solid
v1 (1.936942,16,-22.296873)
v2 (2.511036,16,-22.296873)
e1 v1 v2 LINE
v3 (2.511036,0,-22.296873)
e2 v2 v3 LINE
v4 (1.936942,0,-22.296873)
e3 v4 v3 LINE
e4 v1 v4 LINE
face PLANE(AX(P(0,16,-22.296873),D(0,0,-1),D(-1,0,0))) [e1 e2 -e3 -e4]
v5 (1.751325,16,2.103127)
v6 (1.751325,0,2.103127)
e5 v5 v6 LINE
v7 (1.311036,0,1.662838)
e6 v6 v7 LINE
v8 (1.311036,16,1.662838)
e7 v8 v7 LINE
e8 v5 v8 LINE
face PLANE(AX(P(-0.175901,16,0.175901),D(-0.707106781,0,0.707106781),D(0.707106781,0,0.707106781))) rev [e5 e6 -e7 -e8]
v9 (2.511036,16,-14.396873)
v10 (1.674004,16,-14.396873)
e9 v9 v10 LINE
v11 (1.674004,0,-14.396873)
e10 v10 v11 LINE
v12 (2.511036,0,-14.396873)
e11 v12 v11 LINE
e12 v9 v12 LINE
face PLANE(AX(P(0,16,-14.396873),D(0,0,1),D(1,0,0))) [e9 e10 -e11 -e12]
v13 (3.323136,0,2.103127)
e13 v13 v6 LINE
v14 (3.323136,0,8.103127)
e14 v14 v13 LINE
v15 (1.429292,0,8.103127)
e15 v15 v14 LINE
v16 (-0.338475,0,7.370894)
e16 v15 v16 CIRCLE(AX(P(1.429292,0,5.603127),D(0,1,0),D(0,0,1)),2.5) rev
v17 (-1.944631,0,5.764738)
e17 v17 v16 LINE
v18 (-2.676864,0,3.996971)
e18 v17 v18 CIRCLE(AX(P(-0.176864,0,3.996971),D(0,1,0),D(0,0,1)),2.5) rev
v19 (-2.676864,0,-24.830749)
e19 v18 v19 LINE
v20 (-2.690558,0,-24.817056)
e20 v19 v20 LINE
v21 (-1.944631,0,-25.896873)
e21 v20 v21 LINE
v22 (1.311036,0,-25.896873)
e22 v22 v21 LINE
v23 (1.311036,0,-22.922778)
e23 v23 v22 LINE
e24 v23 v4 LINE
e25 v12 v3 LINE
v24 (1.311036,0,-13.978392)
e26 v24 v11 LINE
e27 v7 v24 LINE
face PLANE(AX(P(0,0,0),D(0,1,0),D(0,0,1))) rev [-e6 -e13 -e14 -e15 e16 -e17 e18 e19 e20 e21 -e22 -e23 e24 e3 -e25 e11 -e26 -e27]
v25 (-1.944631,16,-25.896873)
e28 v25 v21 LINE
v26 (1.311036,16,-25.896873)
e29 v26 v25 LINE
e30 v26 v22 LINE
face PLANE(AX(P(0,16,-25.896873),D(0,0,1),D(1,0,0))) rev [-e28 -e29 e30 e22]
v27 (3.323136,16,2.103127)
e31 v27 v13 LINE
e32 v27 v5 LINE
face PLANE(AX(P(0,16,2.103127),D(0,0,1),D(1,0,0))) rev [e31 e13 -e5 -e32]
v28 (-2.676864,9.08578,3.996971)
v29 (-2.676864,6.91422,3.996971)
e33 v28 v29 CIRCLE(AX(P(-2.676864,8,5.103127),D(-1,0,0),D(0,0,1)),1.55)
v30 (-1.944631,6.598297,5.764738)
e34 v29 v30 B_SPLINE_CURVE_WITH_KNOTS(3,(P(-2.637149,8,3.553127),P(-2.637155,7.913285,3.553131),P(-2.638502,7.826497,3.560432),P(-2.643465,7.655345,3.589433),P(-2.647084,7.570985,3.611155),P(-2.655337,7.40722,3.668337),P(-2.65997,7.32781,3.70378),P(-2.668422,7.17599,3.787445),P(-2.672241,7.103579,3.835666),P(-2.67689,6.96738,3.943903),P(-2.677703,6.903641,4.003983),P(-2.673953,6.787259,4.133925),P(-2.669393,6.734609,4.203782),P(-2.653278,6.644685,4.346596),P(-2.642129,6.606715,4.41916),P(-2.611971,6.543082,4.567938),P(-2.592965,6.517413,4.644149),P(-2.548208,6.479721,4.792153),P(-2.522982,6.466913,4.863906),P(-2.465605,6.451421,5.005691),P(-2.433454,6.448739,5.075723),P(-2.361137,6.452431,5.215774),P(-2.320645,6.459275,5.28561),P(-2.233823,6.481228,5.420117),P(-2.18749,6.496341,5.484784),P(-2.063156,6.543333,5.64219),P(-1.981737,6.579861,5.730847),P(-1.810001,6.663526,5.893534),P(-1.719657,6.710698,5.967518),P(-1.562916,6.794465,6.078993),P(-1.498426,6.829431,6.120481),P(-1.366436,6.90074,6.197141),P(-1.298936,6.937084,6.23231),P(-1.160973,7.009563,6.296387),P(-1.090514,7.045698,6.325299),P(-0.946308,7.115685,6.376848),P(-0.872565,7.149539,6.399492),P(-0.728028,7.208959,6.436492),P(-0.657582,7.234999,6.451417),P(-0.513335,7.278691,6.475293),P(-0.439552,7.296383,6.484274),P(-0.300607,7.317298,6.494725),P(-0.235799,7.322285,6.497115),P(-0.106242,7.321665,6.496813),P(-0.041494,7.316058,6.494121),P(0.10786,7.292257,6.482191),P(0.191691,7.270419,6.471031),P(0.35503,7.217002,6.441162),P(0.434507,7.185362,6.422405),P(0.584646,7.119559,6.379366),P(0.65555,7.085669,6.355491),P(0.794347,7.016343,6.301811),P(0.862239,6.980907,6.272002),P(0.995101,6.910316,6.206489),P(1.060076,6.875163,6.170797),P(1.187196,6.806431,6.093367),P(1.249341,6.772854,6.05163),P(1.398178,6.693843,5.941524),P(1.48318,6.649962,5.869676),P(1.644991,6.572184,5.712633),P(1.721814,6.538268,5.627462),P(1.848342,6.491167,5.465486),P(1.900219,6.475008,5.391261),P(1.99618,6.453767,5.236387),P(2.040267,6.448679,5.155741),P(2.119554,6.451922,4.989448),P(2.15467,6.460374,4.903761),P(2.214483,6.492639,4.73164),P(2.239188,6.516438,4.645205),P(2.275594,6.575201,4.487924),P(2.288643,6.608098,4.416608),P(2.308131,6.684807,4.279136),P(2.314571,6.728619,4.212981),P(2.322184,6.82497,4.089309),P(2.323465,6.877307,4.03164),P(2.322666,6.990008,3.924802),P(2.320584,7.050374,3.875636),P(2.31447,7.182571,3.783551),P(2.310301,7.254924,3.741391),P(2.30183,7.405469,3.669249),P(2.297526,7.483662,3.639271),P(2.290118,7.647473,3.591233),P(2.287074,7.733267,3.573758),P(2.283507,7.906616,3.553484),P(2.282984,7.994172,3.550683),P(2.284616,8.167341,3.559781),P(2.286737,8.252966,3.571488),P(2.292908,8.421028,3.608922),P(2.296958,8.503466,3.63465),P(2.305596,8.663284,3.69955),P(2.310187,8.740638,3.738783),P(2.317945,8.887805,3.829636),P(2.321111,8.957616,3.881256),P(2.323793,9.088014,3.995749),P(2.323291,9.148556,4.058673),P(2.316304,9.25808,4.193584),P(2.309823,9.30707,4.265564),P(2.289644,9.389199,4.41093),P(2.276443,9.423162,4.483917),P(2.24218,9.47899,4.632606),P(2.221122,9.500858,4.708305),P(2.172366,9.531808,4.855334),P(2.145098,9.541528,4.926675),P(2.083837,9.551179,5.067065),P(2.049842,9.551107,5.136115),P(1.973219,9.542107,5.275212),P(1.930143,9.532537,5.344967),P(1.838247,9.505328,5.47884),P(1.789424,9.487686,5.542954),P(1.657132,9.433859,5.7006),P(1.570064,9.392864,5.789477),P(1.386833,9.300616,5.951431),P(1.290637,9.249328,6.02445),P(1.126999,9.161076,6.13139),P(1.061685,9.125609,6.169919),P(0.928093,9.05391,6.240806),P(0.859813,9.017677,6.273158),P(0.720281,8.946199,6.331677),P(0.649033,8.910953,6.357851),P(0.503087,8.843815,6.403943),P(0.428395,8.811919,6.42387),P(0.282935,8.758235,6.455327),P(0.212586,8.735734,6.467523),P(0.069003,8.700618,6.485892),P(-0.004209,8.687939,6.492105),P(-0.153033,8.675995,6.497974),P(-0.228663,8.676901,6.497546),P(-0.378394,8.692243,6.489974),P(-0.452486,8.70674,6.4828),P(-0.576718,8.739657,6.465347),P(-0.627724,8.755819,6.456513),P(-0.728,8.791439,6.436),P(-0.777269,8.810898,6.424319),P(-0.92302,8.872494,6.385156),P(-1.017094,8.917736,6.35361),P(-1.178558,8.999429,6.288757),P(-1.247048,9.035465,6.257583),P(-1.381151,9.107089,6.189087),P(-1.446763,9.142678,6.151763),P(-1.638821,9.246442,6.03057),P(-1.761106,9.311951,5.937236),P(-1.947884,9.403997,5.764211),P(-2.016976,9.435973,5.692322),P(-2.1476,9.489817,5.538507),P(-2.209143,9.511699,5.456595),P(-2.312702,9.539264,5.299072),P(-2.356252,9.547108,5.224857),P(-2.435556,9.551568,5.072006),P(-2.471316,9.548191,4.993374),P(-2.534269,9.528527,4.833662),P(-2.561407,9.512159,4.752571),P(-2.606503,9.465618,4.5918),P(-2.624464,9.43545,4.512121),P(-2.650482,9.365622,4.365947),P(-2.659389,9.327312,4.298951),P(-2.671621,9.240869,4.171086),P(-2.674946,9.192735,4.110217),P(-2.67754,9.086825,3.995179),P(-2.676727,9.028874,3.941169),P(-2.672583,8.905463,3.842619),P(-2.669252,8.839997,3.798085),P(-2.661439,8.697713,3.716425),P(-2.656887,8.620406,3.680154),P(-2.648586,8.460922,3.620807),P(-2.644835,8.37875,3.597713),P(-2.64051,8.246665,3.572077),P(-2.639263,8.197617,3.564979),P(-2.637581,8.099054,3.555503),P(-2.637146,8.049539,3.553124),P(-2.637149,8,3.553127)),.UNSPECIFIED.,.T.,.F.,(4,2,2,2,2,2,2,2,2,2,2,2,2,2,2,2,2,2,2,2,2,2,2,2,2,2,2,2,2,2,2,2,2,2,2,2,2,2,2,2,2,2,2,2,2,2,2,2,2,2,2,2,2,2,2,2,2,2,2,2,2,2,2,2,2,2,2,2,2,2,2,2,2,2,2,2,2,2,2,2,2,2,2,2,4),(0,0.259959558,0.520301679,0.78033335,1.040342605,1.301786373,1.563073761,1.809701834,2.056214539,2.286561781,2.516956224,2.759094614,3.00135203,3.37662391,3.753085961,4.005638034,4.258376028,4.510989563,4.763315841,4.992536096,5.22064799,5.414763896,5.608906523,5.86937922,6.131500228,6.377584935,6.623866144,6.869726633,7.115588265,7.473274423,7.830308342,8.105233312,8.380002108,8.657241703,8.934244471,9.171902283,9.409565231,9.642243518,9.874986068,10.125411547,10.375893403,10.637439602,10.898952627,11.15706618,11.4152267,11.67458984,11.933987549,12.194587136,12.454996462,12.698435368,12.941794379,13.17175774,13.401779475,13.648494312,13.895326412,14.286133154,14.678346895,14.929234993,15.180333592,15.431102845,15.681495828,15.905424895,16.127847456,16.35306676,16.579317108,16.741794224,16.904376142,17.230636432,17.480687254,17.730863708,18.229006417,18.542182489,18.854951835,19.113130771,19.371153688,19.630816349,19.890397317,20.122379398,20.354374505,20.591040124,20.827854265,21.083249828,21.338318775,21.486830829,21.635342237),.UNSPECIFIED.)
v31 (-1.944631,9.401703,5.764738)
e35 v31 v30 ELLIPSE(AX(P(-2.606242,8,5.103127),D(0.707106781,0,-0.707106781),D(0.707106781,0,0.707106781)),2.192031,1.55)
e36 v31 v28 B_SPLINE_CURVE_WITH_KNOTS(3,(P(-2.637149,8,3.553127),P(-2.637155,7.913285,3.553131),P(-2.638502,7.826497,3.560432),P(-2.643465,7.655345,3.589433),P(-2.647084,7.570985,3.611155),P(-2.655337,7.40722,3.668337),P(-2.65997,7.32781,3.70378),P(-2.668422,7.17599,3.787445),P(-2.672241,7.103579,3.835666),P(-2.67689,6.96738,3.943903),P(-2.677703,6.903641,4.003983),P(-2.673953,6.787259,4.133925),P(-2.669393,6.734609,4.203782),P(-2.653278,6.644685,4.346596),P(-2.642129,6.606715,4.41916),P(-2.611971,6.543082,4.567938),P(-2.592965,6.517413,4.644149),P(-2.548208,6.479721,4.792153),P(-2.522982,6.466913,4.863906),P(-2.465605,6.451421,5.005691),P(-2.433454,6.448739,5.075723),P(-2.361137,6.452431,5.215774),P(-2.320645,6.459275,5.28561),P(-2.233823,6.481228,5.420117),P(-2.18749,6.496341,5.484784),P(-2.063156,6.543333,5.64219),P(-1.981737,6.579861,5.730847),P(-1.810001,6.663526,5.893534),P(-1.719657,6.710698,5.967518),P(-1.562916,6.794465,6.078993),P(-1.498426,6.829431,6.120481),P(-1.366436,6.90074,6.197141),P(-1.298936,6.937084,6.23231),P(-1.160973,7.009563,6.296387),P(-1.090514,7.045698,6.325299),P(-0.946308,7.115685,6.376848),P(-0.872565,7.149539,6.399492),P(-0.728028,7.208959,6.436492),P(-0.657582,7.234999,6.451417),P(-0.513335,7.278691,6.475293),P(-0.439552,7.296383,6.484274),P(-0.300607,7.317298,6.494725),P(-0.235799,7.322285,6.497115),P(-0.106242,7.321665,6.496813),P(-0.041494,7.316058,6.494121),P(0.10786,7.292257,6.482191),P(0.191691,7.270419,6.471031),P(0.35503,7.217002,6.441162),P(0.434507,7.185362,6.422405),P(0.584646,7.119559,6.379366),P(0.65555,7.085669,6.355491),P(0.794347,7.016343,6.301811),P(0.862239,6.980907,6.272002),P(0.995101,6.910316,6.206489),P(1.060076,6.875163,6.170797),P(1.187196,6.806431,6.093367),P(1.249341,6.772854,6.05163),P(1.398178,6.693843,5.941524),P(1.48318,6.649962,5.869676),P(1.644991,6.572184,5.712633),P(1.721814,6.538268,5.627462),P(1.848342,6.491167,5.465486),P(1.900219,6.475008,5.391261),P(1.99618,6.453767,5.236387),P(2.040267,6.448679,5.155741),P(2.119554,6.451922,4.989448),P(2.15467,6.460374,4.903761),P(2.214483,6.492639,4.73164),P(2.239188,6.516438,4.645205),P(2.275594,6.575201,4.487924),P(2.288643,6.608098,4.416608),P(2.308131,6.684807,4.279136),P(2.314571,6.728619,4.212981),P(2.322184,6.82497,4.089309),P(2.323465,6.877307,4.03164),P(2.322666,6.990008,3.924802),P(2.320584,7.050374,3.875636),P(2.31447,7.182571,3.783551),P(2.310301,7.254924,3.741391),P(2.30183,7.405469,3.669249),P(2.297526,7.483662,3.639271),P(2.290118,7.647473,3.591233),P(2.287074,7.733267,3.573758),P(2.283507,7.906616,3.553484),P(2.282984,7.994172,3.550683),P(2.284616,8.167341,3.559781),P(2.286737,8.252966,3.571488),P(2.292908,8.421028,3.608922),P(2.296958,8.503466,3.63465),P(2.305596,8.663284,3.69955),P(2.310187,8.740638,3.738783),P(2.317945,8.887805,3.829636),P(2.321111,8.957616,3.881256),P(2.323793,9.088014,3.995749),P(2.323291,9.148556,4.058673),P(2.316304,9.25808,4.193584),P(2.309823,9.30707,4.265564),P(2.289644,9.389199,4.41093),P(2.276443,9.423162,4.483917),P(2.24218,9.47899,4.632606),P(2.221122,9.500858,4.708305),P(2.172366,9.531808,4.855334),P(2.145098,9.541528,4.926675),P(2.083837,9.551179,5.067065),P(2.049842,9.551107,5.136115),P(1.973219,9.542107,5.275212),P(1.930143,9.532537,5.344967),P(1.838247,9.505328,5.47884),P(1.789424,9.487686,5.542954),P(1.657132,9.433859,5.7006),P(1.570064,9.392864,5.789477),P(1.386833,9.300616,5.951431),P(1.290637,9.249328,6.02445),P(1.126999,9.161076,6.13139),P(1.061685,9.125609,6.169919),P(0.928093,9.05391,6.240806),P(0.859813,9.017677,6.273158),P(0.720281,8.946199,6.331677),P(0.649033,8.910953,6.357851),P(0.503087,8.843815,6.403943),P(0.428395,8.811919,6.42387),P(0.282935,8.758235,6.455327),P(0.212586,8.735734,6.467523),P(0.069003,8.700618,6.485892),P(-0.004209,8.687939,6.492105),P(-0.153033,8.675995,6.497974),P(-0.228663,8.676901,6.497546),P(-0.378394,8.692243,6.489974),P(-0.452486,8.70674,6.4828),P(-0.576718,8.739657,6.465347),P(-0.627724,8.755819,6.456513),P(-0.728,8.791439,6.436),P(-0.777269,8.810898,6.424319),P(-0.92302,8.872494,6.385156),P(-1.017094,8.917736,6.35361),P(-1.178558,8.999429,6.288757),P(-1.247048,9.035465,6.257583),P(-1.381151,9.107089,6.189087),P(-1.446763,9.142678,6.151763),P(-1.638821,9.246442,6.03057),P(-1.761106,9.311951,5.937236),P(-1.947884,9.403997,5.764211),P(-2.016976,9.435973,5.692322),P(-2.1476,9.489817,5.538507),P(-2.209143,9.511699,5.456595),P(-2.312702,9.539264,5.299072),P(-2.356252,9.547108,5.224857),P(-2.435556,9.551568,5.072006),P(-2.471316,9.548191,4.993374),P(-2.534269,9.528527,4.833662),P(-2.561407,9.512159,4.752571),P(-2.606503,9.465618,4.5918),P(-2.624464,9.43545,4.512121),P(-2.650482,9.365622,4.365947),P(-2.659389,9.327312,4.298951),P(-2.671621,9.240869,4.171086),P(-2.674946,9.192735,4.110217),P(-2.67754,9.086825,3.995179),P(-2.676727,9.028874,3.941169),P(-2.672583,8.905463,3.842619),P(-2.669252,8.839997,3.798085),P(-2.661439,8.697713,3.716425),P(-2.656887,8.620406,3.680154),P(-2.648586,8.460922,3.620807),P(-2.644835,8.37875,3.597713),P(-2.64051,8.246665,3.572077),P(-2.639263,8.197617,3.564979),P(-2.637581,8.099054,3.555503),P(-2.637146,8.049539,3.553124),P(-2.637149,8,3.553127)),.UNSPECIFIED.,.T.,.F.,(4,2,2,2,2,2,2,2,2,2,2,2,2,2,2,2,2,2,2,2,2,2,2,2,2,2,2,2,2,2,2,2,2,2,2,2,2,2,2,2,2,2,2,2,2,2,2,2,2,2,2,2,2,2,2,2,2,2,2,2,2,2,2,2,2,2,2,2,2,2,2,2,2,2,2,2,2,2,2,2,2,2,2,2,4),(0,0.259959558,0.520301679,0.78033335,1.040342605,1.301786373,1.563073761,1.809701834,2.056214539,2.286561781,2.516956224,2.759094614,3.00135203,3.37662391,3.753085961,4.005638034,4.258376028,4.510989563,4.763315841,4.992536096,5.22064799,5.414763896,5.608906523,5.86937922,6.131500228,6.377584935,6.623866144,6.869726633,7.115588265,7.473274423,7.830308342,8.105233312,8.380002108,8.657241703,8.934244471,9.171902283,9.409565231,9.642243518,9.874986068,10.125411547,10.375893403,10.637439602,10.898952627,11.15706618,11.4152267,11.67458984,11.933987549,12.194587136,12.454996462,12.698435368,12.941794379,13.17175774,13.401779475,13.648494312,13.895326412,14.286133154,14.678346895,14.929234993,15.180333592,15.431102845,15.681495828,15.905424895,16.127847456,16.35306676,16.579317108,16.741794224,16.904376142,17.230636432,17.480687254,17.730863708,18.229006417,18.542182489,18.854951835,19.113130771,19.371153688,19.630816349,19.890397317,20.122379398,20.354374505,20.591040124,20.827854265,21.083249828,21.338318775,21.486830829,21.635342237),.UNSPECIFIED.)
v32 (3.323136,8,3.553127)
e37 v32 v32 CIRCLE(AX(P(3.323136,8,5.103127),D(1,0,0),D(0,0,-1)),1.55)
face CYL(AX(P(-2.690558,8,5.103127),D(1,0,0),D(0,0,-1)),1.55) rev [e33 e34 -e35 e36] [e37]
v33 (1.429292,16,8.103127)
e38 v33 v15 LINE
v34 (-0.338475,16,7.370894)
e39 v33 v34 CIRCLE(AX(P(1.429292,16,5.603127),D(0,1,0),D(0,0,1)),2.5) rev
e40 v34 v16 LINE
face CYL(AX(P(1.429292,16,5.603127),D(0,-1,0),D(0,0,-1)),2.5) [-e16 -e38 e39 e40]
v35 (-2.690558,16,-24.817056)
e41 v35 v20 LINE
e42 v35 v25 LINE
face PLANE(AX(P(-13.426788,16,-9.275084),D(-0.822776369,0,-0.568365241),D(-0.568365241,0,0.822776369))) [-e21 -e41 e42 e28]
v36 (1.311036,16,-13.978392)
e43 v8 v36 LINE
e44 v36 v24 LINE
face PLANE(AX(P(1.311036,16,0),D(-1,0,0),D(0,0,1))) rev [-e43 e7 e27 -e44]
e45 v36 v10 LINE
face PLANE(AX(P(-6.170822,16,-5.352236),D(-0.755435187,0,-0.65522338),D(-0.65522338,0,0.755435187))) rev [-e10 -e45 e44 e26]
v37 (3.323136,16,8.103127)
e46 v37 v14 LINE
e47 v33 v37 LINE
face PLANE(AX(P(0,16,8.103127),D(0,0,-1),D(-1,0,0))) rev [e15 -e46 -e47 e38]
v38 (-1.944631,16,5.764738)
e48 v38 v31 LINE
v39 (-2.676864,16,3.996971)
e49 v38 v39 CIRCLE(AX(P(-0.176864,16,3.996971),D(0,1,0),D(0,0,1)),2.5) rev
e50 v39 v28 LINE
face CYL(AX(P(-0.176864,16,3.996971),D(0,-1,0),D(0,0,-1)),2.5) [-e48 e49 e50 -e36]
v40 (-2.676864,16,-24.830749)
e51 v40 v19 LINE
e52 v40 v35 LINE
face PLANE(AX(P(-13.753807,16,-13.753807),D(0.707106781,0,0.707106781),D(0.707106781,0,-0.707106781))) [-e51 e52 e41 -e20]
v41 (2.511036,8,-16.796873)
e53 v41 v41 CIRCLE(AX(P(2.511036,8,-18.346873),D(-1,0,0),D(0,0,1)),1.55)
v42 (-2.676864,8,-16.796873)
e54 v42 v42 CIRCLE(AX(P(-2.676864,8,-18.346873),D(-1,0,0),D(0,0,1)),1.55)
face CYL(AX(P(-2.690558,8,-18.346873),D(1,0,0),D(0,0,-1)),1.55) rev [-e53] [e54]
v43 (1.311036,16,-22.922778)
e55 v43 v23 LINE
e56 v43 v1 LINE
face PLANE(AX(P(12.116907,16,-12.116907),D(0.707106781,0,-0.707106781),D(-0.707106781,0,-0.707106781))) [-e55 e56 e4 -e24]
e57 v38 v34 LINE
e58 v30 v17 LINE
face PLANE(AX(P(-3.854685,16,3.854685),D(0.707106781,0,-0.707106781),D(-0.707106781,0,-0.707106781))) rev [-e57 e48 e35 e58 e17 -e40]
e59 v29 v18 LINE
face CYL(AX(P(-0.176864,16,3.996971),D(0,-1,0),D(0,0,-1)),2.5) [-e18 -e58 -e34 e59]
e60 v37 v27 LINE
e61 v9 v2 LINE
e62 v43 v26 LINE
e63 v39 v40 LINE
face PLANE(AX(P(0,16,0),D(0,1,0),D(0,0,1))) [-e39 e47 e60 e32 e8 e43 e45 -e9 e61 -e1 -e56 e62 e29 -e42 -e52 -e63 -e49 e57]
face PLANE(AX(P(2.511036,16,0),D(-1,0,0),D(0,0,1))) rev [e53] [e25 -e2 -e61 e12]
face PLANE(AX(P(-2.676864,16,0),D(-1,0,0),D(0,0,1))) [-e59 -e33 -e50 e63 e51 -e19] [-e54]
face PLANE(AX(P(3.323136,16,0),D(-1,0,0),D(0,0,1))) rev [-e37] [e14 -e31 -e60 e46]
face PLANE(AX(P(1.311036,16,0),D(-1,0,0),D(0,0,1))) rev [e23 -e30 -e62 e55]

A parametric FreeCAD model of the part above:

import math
import FreeCAD as App
import Part
import Sketcher
from FreeCAD import Vector
Q = App.Units.Quantity

doc = App.newDocument("Part")
body = doc.addObject("PartDesign::Body", "Body")

# Sketch on XZ plane
sketch1 = body.newObject("Sketcher::SketchObject", "Sketch")
sketch1.AttachmentSupport = (doc.getObject("XZ_Plane"), [""])
sketch1.MapMode = "FlatFace"
sketch1.addGeometry(Part.LineSegment(Vector(1.311036, -22.922778, 0), Vector(1.311036, -25.896873, 0)), False)
sketch1.addGeometry(Part.LineSegment(Vector(1.311036, -25.896873, 0), Vector(-1.944631, -25.896873, 0)), False)
sketch1.addGeometry(Part.LineSegment(Vector(-1.944631, -25.896873, 0), Vector(-2.690558, -24.817056, 0)), False)
sketch1.addGeometry(Part.LineSegment(Vector(-2.690558, -24.817056, 0), Vector(-2.676864, -24.830749, 0)), False)
sketch1.addGeometry(Part.LineSegment(Vector(-2.676864, -24.830749, 0), Vector(-2.676864, 3.996971, 0)), False)
sketch1.addGeometry(Part.ArcOfCircle(Part.Circle(Vector(-0.176864, 3.996971, 0), Vector(0, 0, 1), 2.5), math.radians(135), math.radians(180)), False)
sketch1.addGeometry(Part.LineSegment(Vector(-1.944631, 5.764738, 0), Vector(-0.338475, 7.370894, 0)), False)
sketch1.addGeometry(Part.ArcOfCircle(Part.Circle(Vector(1.429292, 5.603127, 0), Vector(0, 0, 1), 2.5), math.radians(90), math.radians(135)), False)
sketch1.addGeometry(Part.LineSegment(Vector(1.429292, 8.103127, 0), Vector(3.323136, 8.103127, 0)), False)
sketch1.addGeometry(Part.LineSegment(Vector(3.323136, 8.103127, 0), Vector(3.323136, 2.103127, 0)), False)
sketch1.addGeometry(Part.LineSegment(Vector(3.323136, 2.103127, 0), Vector(1.751325, 2.103127, 0)), False)
sketch1.addGeometry(Part.LineSegment(Vector(1.751325, 2.103127, 0), Vector(1.311036, 1.662838, 0)), False)
sketch1.addGeometry(Part.LineSegment(Vector(1.311036, 1.662838, 0), Vector(1.311036, -13.978392, 0)), False)
sketch1.addGeometry(Part.LineSegment(Vector(1.311036, -13.978392, 0), Vector(1.674004, -14.396873, 0)), False)
sketch1.addGeometry(Part.LineSegment(Vector(1.674004, -14.396873, 0), Vector(2.511036, -14.396873, 0)), False)
sketch1.addGeometry(Part.LineSegment(Vector(2.511036, -14.396873, 0), Vector(2.511036, -22.296873, 0)), False)
sketch1.addGeometry(Part.LineSegment(Vector(2.511036, -22.296873, 0), Vector(1.936942, -22.296873, 0)), False)
sketch1.addGeometry(Part.LineSegment(Vector(1.936942, -22.296873, 0), Vector(1.311036, -22.922778, 0)), False)
sketch1.addConstraint(Sketcher.Constraint("Coincident", 0, 2, 1, 1))
sketch1.addConstraint(Sketcher.Constraint("Coincident", 1, 2, 2, 1))
sketch1.addConstraint(Sketcher.Constraint("Coincident", 2, 2, 3, 1))
sketch1.addConstraint(Sketcher.Constraint("Coincident", 3, 2, 4, 1))
sketch1.addConstraint(Sketcher.Constraint("Tangent", 4, 2, 5, 2))
sketch1.addConstraint(Sketcher.Constraint("Tangent", 5, 1, 6, 1))
sketch1.addConstraint(Sketcher.Constraint("Tangent", 6, 2, 7, 2))
sketch1.addConstraint(Sketcher.Constraint("Tangent", 7, 1, 8, 1))
sketch1.addConstraint(Sketcher.Constraint("Coincident", 8, 2, 9, 1))
sketch1.addConstraint(Sketcher.Constraint("Coincident", 9, 2, 10, 1))
sketch1.addConstraint(Sketcher.Constraint("Coincident", 10, 2, 11, 1))
sketch1.addConstraint(Sketcher.Constraint("Coincident", 11, 2, 12, 1))
sketch1.addConstraint(Sketcher.Constraint("Coincident", 12, 2, 13, 1))
sketch1.addConstraint(Sketcher.Constraint("Coincident", 13, 2, 14, 1))
sketch1.addConstraint(Sketcher.Constraint("Coincident", 14, 2, 15, 1))
sketch1.addConstraint(Sketcher.Constraint("Coincident", 15, 2, 16, 1))
sketch1.addConstraint(Sketcher.Constraint("Coincident", 16, 2, 17, 1))
sketch1.addConstraint(Sketcher.Constraint("Coincident", 17, 2, 0, 1))
sketch1.addConstraint(Sketcher.Constraint("Vertical", 0))
sketch1.addConstraint(Sketcher.Constraint("Horizontal", 1))
sketch1.addConstraint(Sketcher.Constraint("Vertical", 4))
sketch1.addConstraint(Sketcher.Constraint("Horizontal", 8))
sketch1.addConstraint(Sketcher.Constraint("Vertical", 9))
sketch1.addConstraint(Sketcher.Constraint("Horizontal", 10))
sketch1.addConstraint(Sketcher.Constraint("Vertical", 12))
sketch1.addConstraint(Sketcher.Constraint("Horizontal", 14))
sketch1.addConstraint(Sketcher.Constraint("Vertical", 15))
sketch1.addConstraint(Sketcher.Constraint("Horizontal", 16))
sketch1.addConstraint(Sketcher.Constraint("Equal", 5, 7))
sketch1.addConstraint(Sketcher.Constraint("Perpendicular", 3, 6))
sketch1.addConstraint(Sketcher.Constraint("Parallel", 6, 11))
sketch1.addConstraint(Sketcher.Constraint("Parallel", 11, 17))
sketch1.addConstraint(Sketcher.Constraint("Vertical", 1, 2, 5, 1))
sketch1.addConstraint(Sketcher.Constraint("Vertical", 0, 2, 11, 2))
sketch1.addConstraint(Sketcher.Constraint("Radius", 5, 2.5))
sketch1.addConstraint(Sketcher.Constraint("DistanceY", 9, 2, 9, 1, 6.0))
sketch1.addConstraint(Sketcher.Constraint("Angle", 3, Q("-45 deg")))
sketch1.addConstraint(Sketcher.Constraint("DistanceY", 15, 2, 15, 1, 7.9))
sketch1.addConstraint(Sketcher.Constraint("DistanceX", 4, 2, 9, 2, 6.0))
sketch1.addConstraint(Sketcher.Constraint("DistanceY", 0, 2, 7, 3, 31.5))
sketch1.addConstraint(Sketcher.Constraint("DistanceY", 0, 2, 13, 2, 11.5))
sketch1.addConstraint(Sketcher.Constraint("DistanceX", 12, 2, 14, 2, 1.2))
sketch1.addConstraint(Sketcher.Constraint("DistanceX", 10, 2, 10, 1, 1.571811))
sketch1.addConstraint(Sketcher.Constraint("DistanceY", 4, 1, 4, 2, 28.82772))
sketch1.addConstraint(Sketcher.Constraint("DistanceY", 12, 2, 12, 1, 15.64123))
sketch1.addConstraint(Sketcher.Constraint("DistanceX", 5, 3, 0, 2, 1.487901))
sketch1.addConstraint(Sketcher.Constraint("DistanceX", 2, 2, 16, 2, 4.6275))
sketch1.addConstraint(Sketcher.Constraint("Distance", 13, 0.55396))
sketch1.addConstraint(Sketcher.Constraint("DistanceX", 8, 1, 8, 2, 1.893844))
sketch1.addConstraint(Sketcher.Constraint("DistanceX", 16, 2, 16, 1, 0.574095))
sketch1.addConstraint(Sketcher.Constraint("DistanceY", -1, 1, 5, 3, 3.996971))
sketch1.addConstraint(Sketcher.Constraint("DistanceX", -1, 1, 7, 3, 1.429292))
pad1 = body.newObject("PartDesign::Pad", "Pad")
pad1.Profile = sketch1
pad1.Length = 16
pad1.Reversed = True

# Sketch on YZ plane
sketch2 = body.newObject("Sketcher::SketchObject", "Sketch001")
sketch2.AttachmentSupport = (doc.getObject("YZ_Plane"), [""])
sketch2.MapMode = "FlatFace"
sketch2.AttachmentOffset = App.Placement(Vector(0, 0, 2.511036), App.Rotation())
sketch2.addGeometry(Part.Circle(Vector(8, -18.346873, 0), Vector(0, 0, 1), 1.55), False)
sketch2.addGeometry(Part.Circle(Vector(8, 5.103127, 0), Vector(0, 0, 1), 1.55), False)
sketch2.addConstraint(Sketcher.Constraint("Equal", 0, 1))
sketch2.addConstraint(Sketcher.Constraint("Vertical", 0, 3, 1, 3))
sketch2.addConstraint(Sketcher.Constraint("Diameter", 0, 3.1))
sketch2.addConstraint(Sketcher.Constraint("DistanceX", -1, 1, 0, 3, 8.0))
sketch2.addConstraint(Sketcher.Constraint("DistanceY", 0, 3, 1, 3, 23.45))
sketch2.addConstraint(Sketcher.Constraint("DistanceY", 0, 3, -1, 1, 18.346873))
pocket1 = body.newObject("PartDesign::Pocket", "Pocket")
pocket1.Profile = sketch2
pocket1.Type = "ThroughAll"
pocket1.Midplane = True

doc.recompute()
